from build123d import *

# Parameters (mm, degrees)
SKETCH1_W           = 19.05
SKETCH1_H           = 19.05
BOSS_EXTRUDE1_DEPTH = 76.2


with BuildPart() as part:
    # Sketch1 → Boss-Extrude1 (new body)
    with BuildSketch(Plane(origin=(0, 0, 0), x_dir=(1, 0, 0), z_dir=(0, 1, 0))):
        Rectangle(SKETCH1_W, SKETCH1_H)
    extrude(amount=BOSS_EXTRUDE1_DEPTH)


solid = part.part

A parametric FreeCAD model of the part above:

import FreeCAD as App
import Part
import Sketcher
from FreeCAD import Vector
Q = App.Units.Quantity


def add_polygon(sketch, points):
    """Adds a closed chain of lines whose ends are joined by coincident constraints."""
    first, n = sketch.GeometryCount, len(points)
    for a, b in zip(points, points[1:] + points[:1]):
        sketch.addGeometry(Part.LineSegment(App.Vector(*a, 0), App.Vector(*b, 0)), False)
    for i in range(n):
        sketch.addConstraint(Sketcher.Constraint("Coincident", first + i, 2, first + (i + 1) % n, 1))

doc = App.newDocument("Part")
params = doc.addObject("Spreadsheet::Sheet", "Params")
for row, (alias, value) in enumerate([
    ("sketch1_width", "0.75 in"),
    ("pad1_length", "3 in"),
], start=1):
    params.set(f"A{row}", alias)
    params.set(f"B{row}", "=" + value)
    params.setAlias(f"B{row}", alias)

body = doc.addObject("PartDesign::Body", "Body")

sketch1 = body.newObject("Sketcher::SketchObject", "Sketch")
sketch1.AttachmentSupport = (doc.getObject("XZ_Plane"), [""])
sketch1.MapMode = "FlatFace"
add_polygon(sketch1, [(-10, -10), (-10, 10), (10, 10), (10, -10)])
sketch1.addConstraint([
    Sketcher.Constraint("Vertical", 0),
    Sketcher.Constraint("Horizontal", 1),
    Sketcher.Constraint("Vertical", 2),
    Sketcher.Constraint("Horizontal", 3),
    Sketcher.Constraint("Symmetric", 0, 2, 2, 2, -1, 1),
    Sketcher.Constraint("Equal", 3, 0),
    Sketcher.Constraint("DistanceX", 1, 1, 1, 2, Q("0.75 in")),
])
sketch1.setExpression("Constraints[10]", "Params.sketch1_width")
pad1 = body.newObject("PartDesign::Pad", "Pad")
pad1.Profile = sketch1
pad1.setExpression("Length", "Params.pad1_length")
pad1.Reversed = True

doc.recompute()
